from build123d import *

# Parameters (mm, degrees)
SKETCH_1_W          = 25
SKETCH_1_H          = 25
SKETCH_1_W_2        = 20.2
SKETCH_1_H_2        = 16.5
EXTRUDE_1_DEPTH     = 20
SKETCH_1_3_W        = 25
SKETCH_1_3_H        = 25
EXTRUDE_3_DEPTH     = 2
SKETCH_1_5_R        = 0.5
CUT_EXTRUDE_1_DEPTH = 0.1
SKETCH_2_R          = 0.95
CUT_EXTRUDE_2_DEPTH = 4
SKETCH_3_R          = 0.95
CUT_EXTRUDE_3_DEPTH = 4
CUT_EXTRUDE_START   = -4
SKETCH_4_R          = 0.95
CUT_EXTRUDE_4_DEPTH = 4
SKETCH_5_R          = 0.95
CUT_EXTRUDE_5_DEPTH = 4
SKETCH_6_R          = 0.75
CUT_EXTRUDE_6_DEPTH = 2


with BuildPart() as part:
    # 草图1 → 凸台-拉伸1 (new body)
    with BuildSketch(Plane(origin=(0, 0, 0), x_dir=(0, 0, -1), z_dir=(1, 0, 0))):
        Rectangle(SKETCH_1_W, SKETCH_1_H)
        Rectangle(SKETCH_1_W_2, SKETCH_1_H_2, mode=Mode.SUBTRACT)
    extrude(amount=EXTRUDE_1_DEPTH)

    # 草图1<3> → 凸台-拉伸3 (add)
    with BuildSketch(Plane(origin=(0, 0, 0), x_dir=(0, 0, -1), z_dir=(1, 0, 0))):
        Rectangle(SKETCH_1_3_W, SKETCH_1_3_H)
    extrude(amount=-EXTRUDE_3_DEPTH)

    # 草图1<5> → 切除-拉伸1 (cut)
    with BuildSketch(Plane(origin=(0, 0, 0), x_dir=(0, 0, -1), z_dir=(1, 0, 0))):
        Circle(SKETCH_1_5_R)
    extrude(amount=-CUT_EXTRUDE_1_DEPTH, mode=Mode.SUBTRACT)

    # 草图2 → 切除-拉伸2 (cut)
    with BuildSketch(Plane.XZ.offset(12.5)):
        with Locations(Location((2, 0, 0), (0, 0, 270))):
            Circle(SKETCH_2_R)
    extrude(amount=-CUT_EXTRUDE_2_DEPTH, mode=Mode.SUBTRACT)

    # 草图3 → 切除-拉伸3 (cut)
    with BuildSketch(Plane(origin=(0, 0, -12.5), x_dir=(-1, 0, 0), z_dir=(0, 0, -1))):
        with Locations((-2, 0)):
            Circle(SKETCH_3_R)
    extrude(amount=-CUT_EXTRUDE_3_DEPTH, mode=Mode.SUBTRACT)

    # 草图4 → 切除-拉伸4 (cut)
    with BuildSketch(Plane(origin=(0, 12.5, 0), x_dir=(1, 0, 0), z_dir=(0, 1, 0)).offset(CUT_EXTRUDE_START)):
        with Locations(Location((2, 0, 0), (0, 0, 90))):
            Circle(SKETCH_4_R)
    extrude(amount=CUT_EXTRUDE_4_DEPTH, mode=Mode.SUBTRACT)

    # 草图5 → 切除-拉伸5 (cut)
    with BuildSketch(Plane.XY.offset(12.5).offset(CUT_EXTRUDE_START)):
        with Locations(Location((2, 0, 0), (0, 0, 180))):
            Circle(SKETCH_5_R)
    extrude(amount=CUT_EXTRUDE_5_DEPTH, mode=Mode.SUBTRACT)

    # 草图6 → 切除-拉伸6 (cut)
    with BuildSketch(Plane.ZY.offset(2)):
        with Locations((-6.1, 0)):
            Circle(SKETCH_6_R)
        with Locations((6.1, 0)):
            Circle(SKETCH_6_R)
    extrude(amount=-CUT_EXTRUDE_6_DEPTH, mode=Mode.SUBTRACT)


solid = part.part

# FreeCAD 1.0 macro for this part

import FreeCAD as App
import Part
import Sketcher
from FreeCAD import Vector
Q = App.Units.Quantity

doc = App.newDocument("Part")
body = doc.addObject("PartDesign::Body", "Body")

sketch1 = body.newObject("Sketcher::SketchObject", "Sketch")
sketch1.AttachmentSupport = (doc.getObject("YZ_Plane"), [""])
sketch1.MapMode = "FlatFace"
sketch1.addGeometry(Part.LineSegment(Vector(12, 12, 0), Vector(-12, 12, 0)), False)
sketch1.addGeometry(Part.LineSegment(Vector(-12, 12, 0), Vector(-12, -12, 0)), False)
sketch1.addGeometry(Part.LineSegment(Vector(-12, -12, 0), Vector(12, -12, 0)), False)
sketch1.addGeometry(Part.LineSegment(Vector(12, -12, 0), Vector(12, 12, 0)), False)
sketch1.addGeometry(Part.LineSegment(Vector(-8, -10, 0), Vector(-8, 10, 0)), False)
sketch1.addGeometry(Part.LineSegment(Vector(-8, 10, 0), Vector(8, 10, 0)), False)
sketch1.addGeometry(Part.LineSegment(Vector(8, 10, 0), Vector(8, -10, 0)), False)
sketch1.addGeometry(Part.LineSegment(Vector(8, -10, 0), Vector(-8, -10, 0)), False)
sketch1.addConstraint(Sketcher.Constraint("Coincident", 0, 2, 1, 1))
sketch1.addConstraint(Sketcher.Constraint("Coincident", 1, 2, 2, 1))
sketch1.addConstraint(Sketcher.Constraint("Coincident", 2, 2, 3, 1))
sketch1.addConstraint(Sketcher.Constraint("Coincident", 3, 2, 0, 1))
sketch1.addConstraint(Sketcher.Constraint("Coincident", 4, 2, 5, 1))
sketch1.addConstraint(Sketcher.Constraint("Coincident", 5, 2, 6, 1))
sketch1.addConstraint(Sketcher.Constraint("Coincident", 6, 2, 7, 1))
sketch1.addConstraint(Sketcher.Constraint("Coincident", 7, 2, 4, 1))
sketch1.addConstraint(Sketcher.Constraint("Horizontal", 0))
sketch1.addConstraint(Sketcher.Constraint("Vertical", 1))
sketch1.addConstraint(Sketcher.Constraint("Horizontal", 2))
sketch1.addConstraint(Sketcher.Constraint("Vertical", 3))
sketch1.addConstraint(Sketcher.Constraint("Vertical", 4))
sketch1.addConstraint(Sketcher.Constraint("Horizontal", 5))
sketch1.addConstraint(Sketcher.Constraint("Vertical", 6))
sketch1.addConstraint(Sketcher.Constraint("Horizontal", 7))
sketch1.addConstraint(Sketcher.Constraint("Symmetric", 0, 2, 2, 2, -1, 1))
sketch1.addConstraint(Sketcher.Constraint("Symmetric", 4, 2, 6, 2, -1, 1))
sketch1.addConstraint(Sketcher.Constraint("Equal", 2, 1))
sketch1.addConstraint(Sketcher.Constraint("DistanceX", 0, 2, 0, 1, Q("25 mm")))
sketch1.addConstraint(Sketcher.Constraint("DistanceX", 5, 1, 5, 2, Q("16.5 mm")))
sketch1.addConstraint(Sketcher.Constraint("DistanceY", 4, 1, 4, 2, Q("20.2 mm")))
pad1 = body.newObject("PartDesign::Pad", "Pad")
pad1.Profile = sketch1
pad1.Length = 20

sketch2 = body.newObject("Sketcher::SketchObject", "Sketch001")
sketch2.AttachmentSupport = (doc.getObject("YZ_Plane"), [""])
sketch2.MapMode = "FlatFace"
sketch2.addGeometry(Part.LineSegment(Vector(12, 12, 0), Vector(-12, 12, 0)), False)
sketch2.addGeometry(Part.LineSegment(Vector(-12, 12, 0), Vector(-12, -12, 0)), False)
sketch2.addGeometry(Part.LineSegment(Vector(-12, -12, 0), Vector(12, -12, 0)), False)
sketch2.addGeometry(Part.LineSegment(Vector(12, -12, 0), Vector(12, 12, 0)), False)
sketch2.addConstraint(Sketcher.Constraint("Coincident", 0, 2, 1, 1))
sketch2.addConstraint(Sketcher.Constraint("Coincident", 1, 2, 2, 1))
sketch2.addConstraint(Sketcher.Constraint("Coincident", 2, 2, 3, 1))
sketch2.addConstraint(Sketcher.Constraint("Coincident", 3, 2, 0, 1))
sketch2.addConstraint(Sketcher.Constraint("Horizontal", 0))
sketch2.addConstraint(Sketcher.Constraint("Vertical", 1))
sketch2.addConstraint(Sketcher.Constraint("Horizontal", 2))
sketch2.addConstraint(Sketcher.Constraint("Vertical", 3))
sketch2.addConstraint(Sketcher.Constraint("Symmetric", 0, 2, 2, 2, -1, 1))
sketch2.addConstraint(Sketcher.Constraint("Equal", 2, 1))
sketch2.addConstraint(Sketcher.Constraint("DistanceX", 0, 2, 0, 1, Q("25 mm")))
pad2 = body.newObject("PartDesign::Pad", "Pad001")
pad2.Profile = sketch2
pad2.Length = 2
pad2.Reversed = True

sketch3 = body.newObject("Sketcher::SketchObject", "Sketch002")
sketch3.AttachmentSupport = (doc.getObject("YZ_Plane"), [""])
sketch3.MapMode = "FlatFace"
sketch3.addGeometry(Part.Circle(Vector(0, 0, 0), Vector(0, 0, 1), 0.5), False)
sketch3.addConstraint(Sketcher.Constraint("Coincident", 0, 3, -1, 1))
sketch3.addConstraint(Sketcher.Constraint("Diameter", 0, Q("1 mm")))
pocket1 = body.newObject("PartDesign::Pocket", "Pocket")
pocket1.Profile = sketch3
pocket1.Length = 0.1

sketch4 = body.newObject("Sketcher::SketchObject", "Sketch003")
sketch4.AttachmentSupport = (doc.getObject("XZ_Plane"), [""])
sketch4.MapMode = "FlatFace"
sketch4.AttachmentOffset = App.Placement(Vector(0, 0, 12.5), App.Rotation())
sketch4.addGeometry(Part.Circle(Vector(2, 0, 0), Vector(0, 0, 1), 0.9), False)
sketch4.addConstraint(Sketcher.Constraint("PointOnObject", 0, 3, -1))
sketch4.addConstraint(Sketcher.Constraint("Diameter", 0, Q("1.9 mm")))
sketch4.addConstraint(Sketcher.Constraint("DistanceX", -1, 1, 0, 3, Q("2 mm")))
pocket2 = body.newObject("PartDesign::Pocket", "Pocket001")
pocket2.Profile = sketch4
pocket2.Length = 4

sketch5 = body.newObject("Sketcher::SketchObject", "Sketch004")
sketch5.AttachmentSupport = (doc.getObject("XY_Plane"), [""])
sketch5.MapMode = "FlatFace"
sketch5.AttachmentOffset = App.Placement(Vector(0, 0, -12.5), App.Rotation())
sketch5.addGeometry(Part.Circle(Vector(2, 0, 0), Vector(0, 0, 1), 0.9), False)
sketch5.addConstraint(Sketcher.Constraint("PointOnObject", 0, 3, -1))
sketch5.addConstraint(Sketcher.Constraint("Diameter", 0, Q("1.9 mm")))
sketch5.addConstraint(Sketcher.Constraint("DistanceX", -1, 1, 0, 3, Q("2 mm")))
pocket3 = body.newObject("PartDesign::Pocket", "Pocket002")
pocket3.Profile = sketch5
pocket3.Length = 4
pocket3.Reversed = True

sketch6 = body.newObject("Sketcher::SketchObject", "Sketch005")
sketch6.AttachmentSupport = (doc.getObject("XZ_Plane"), [""])
sketch6.MapMode = "FlatFace"
sketch6.AttachmentOffset = App.Placement(Vector(0, 0, -8.5), App.Rotation())
sketch6.addGeometry(Part.Circle(Vector(2, 0, 0), Vector(0, 0, 1), 0.9), False)
sketch6.addConstraint(Sketcher.Constraint("PointOnObject", 0, 3, -1))
sketch6.addConstraint(Sketcher.Constraint("Diameter", 0, Q("1.9 mm")))
sketch6.addConstraint(Sketcher.Constraint("DistanceX", -1, 1, 0, 3, Q("2 mm")))
pocket4 = body.newObject("PartDesign::Pocket", "Pocket003")
pocket4.Profile = sketch6
pocket4.Length = 4

sketch7 = body.newObject("Sketcher::SketchObject", "Sketch006")
sketch7.AttachmentSupport = (doc.getObject("XY_Plane"), [""])
sketch7.MapMode = "FlatFace"
sketch7.AttachmentOffset = App.Placement(Vector(0, 0, 8.5), App.Rotation())
sketch7.addGeometry(Part.Circle(Vector(2, 0, 0), Vector(0, 0, 1), 0.9), False)
sketch7.addConstraint(Sketcher.Constraint("PointOnObject", 0, 3, -1))
sketch7.addConstraint(Sketcher.Constraint("Diameter", 0, Q("1.9 mm")))
sketch7.addConstraint(Sketcher.Constraint("DistanceX", -1, 1, 0, 3, Q("2 mm")))
pocket5 = body.newObject("PartDesign::Pocket", "Pocket004")
pocket5.Profile = sketch7
pocket5.Length = 4
pocket5.Reversed = True

sketch8 = body.newObject("Sketcher::SketchObject", "Sketch007")
sketch8.AttachmentSupport = (doc.getObject("YZ_Plane"), [""])
sketch8.MapMode = "FlatFace"
sketch8.AttachmentOffset = App.Placement(Vector(0, 0, -2), App.Rotation())
sketch8.addGeometry(Part.Circle(Vector(0, -6.1, 0), Vector(0, 0, 1), 0.8), False)
sketch8.addGeometry(Part.Circle(Vector(0, 6.1, 0), Vector(0, 0, 1), 0.8), False)
sketch8.addConstraint(Sketcher.Constraint("Equal", 0, 1))
sketch8.addConstraint(Sketcher.Constraint("Symmetric", 0, 3, 1, 3, -1, 1))
sketch8.addConstraint(Sketcher.Constraint("PointOnObject", 0, 3, -2))
sketch8.addConstraint(Sketcher.Constraint("Diameter", 0, Q("1.5 mm")))
sketch8.addConstraint(Sketcher.Constraint("DistanceY", 0, 3, -1, 1, Q("6.1 mm")))
pocket6 = body.newObject("PartDesign::Pocket", "Pocket005")
pocket6.Profile = sketch8
pocket6.Length = 2
pocket6.Reversed = True

doc.recompute()
